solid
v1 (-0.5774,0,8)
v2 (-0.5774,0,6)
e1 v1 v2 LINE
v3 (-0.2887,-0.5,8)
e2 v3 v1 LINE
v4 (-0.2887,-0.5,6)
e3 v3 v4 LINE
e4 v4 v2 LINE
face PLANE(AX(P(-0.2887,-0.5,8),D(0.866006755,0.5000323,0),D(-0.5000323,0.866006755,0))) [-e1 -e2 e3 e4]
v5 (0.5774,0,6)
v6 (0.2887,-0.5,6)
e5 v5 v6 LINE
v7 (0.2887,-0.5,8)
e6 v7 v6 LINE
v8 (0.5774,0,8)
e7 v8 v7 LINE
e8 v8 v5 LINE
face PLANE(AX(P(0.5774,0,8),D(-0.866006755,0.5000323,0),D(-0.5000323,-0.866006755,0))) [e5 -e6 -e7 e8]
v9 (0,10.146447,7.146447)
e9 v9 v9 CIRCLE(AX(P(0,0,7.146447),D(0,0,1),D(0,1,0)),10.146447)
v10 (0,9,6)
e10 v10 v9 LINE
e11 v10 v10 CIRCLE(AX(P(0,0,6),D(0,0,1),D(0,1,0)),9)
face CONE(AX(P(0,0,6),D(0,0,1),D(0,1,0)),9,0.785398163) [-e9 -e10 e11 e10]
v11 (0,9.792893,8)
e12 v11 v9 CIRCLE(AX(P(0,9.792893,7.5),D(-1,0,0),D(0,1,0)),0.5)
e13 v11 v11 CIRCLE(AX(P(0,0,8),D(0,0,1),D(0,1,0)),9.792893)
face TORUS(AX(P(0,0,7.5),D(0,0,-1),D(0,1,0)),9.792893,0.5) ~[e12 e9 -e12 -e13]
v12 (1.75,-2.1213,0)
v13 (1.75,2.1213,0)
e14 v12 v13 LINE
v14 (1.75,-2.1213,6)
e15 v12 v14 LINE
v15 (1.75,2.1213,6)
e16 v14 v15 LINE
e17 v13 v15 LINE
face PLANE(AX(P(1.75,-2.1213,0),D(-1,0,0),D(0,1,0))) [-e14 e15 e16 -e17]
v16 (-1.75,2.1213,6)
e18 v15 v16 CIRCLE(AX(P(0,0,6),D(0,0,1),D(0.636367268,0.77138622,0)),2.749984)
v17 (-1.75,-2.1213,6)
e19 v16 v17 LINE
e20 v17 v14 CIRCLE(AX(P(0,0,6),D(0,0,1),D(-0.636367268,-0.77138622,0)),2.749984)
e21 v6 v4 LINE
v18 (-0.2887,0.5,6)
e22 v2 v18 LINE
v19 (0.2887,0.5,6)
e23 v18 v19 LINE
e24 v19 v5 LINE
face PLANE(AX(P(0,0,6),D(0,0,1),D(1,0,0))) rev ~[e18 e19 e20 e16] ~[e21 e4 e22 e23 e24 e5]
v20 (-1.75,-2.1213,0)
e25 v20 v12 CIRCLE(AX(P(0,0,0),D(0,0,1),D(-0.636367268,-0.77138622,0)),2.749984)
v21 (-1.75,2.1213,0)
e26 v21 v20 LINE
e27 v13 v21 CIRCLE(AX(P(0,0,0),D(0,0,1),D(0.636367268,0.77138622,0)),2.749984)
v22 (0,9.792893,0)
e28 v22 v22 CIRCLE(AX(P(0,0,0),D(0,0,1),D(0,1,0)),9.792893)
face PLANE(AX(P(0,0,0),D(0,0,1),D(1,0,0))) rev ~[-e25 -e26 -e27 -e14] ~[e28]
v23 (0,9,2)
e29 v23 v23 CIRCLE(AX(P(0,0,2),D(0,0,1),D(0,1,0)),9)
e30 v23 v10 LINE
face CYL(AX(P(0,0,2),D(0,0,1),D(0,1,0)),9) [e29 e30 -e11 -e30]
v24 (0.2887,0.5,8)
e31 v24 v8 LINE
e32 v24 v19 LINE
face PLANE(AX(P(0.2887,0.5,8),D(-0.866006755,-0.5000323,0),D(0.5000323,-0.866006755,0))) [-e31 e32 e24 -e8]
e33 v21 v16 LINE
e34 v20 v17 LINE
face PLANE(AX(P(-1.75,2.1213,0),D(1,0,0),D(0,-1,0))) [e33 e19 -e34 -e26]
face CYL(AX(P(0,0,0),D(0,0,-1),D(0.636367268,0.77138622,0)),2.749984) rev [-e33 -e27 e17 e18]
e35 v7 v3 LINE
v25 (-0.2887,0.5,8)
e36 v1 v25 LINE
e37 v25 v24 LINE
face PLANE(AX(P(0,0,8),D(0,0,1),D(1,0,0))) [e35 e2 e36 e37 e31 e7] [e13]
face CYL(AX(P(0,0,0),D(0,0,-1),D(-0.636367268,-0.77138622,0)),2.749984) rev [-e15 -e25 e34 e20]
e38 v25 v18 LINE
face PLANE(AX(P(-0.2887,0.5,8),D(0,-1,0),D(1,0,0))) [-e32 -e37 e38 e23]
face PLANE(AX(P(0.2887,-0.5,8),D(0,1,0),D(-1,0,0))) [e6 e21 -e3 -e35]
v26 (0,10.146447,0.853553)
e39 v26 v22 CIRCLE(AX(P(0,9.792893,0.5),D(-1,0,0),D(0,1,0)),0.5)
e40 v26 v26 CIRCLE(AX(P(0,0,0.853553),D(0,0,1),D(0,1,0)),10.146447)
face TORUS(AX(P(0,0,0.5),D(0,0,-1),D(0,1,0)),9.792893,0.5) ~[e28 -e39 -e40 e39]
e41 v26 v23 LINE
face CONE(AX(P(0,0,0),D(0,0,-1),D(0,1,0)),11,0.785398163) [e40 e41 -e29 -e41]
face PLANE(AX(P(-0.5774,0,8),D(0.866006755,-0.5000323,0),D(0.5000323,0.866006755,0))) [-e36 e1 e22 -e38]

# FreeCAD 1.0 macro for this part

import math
import FreeCAD as App
import Part
import Sketcher
from FreeCAD import Vector


def edges_at(feature, points):
    """Names of the edges that pass closest to the given points."""
    edges = feature.Shape.Edges
    near = lambda p: min(range(len(edges)), key=lambda i: edges[i].distToShape(Part.Vertex(*p))[0])
    return sorted({f"Edge{near(p) + 1}" for p in points})


def add_polygon(sketch, points):
    """Adds a closed chain of lines whose ends are joined by coincident constraints."""
    first, n = sketch.GeometryCount, len(points)
    for a, b in zip(points, points[1:] + points[:1]):
        sketch.addGeometry(Part.LineSegment(App.Vector(*a, 0), App.Vector(*b, 0)), False)
    for i in range(n):
        sketch.addConstraint(Sketcher.Constraint("Coincident", first + i, 2, first + (i + 1) % n, 1))

doc = App.newDocument("Part")
params = doc.addObject("Spreadsheet::Sheet", "Params")
for row, (alias, value) in enumerate([
    ("sketch1_diameter", "22 mm"),
    ("sketch1_radius", "2.75 mm"),
    ("pad1_length", "6 mm"),
    ("sketch2_diameter", "22 mm"),
    ("pad2_length", "2 mm"),
    ("sketch3_height", "4 mm"),
    ("sketch3_height2", "8 mm"),
    ("groove_angle", "360 deg"),
    ("fillet_radius", "0.5 mm"),
], start=1):
    params.set(f"A{row}", alias)
    params.set(f"B{row}", "=" + value)
    params.setAlias(f"B{row}", alias)

body = doc.addObject("PartDesign::Body", "Body")

# Sketch on XY plane
sketch1 = body.newObject("Sketcher::SketchObject", "Sketch")
sketch1.AttachmentSupport = (doc.getObject("XY_Plane"), [""])
sketch1.MapMode = "FlatFace"
sketch1.addGeometry([
    Part.Circle(Vector(0, 0, 0), Vector(0, 0, 1), 11),  # 0
    Part.LineSegment(Vector(-1.8, -2.1, 0), Vector(-1.8, 2.1, 0)),  # 1
    Part.ArcOfCircle(Part.Circle(Vector(0, 0, 0), Vector(0, 0, 1), 2.7), math.radians(50), math.radians(130)),  # 2
    Part.LineSegment(Vector(1.8, 2.1, 0), Vector(1.8, -2.1, 0)),  # 3
    Part.ArcOfCircle(Part.Circle(Vector(0, 0, 0), Vector(0, 0, 1), 2.7), math.radians(-130), math.radians(-50)),  # 4
], False)
sketch1.addConstraint([
    Sketcher.Constraint("Coincident", 1, 2, 2, 2),
    Sketcher.Constraint("Coincident", 2, 1, 3, 1),
    Sketcher.Constraint("Coincident", 3, 2, 4, 2),
    Sketcher.Constraint("Coincident", 4, 1, 1, 1),
    Sketcher.Constraint("Vertical", 1),
    Sketcher.Constraint("Vertical", 3),
    Sketcher.Constraint("Coincident", 0, 3, -1, 1),
    Sketcher.Constraint("Coincident", 2, 3, -1, 1),
    Sketcher.Constraint("Coincident", 4, 3, -1, 1),
    Sketcher.Constraint("Equal", 2, 4),
    Sketcher.Constraint("Horizontal", 1, 2, 2, 1),
    Sketcher.Constraint("Diameter", 0, 22.0),
    Sketcher.Constraint("Radius", 2, 2.75),
    Sketcher.Constraint("DistanceX", 1, 2, 2, 1, 3.5),
])
sketch1.setExpression("Constraints[11]", "Params.sketch1_diameter")
sketch1.setExpression("Constraints[12]", "Params.sketch1_radius")
pad1 = body.newObject("PartDesign::Pad", "Pad")
pad1.Profile = sketch1
pad1.setExpression("Length", "Params.pad1_length")

# Sketch on XY plane
sketch2 = body.newObject("Sketcher::SketchObject", "Sketch001")
sketch2.AttachmentSupport = (doc.getObject("XY_Plane"), [""])
sketch2.MapMode = "FlatFace"
sketch2.AttachmentOffset = App.Placement(Vector(0, 0, 6), App.Rotation())
sketch2.addGeometry(Part.Circle(Vector(0, 0, 0), Vector(0, 0, 1), 11), False)
sketch2.addConstraint([
    Sketcher.Constraint("Coincident", 0, 3, -1, 1),
    Sketcher.Constraint("Diameter", 0, 22.0),
])
sketch2.setExpression("Constraints[1]", "Params.sketch2_diameter")
pad2 = body.newObject("PartDesign::Pad", "Pad001")
pad2.Profile = sketch2
pad2.setExpression("Length", "Params.pad2_length")

# Sketch on YZ plane
sketch3 = body.newObject("Sketcher::SketchObject", "Sketch002")
sketch3.AttachmentSupport = (doc.getObject("YZ_Plane"), [""])
sketch3.MapMode = "FlatFace"
add_polygon(sketch3, [(11, 0), (11, 8), (9, 6), (9, 2)])  # lines 0-3
sketch3.addConstraint([
    Sketcher.Constraint("Vertical", 0),
    Sketcher.Constraint("Vertical", 2),
    Sketcher.Constraint("PointOnObject", 3, 2, -1),
    Sketcher.Constraint("Perpendicular", 1, 3),
    Sketcher.Constraint("Equal", 1, 3),
    Sketcher.Constraint("DistanceY", 2, 2, 2, 1, 4.0),
    Sketcher.Constraint("DistanceY", 0, 1, 0, 2, 8.0),
    Sketcher.Constraint("DistanceX", -1, 1, 0, 2, 11.0),
])
sketch3.setExpression("Constraints[9]", "Params.sketch3_height")
sketch3.setExpression("Constraints[10]", "Params.sketch3_height2")
groove = body.newObject("PartDesign::Groove", "Groove")
groove.Profile = sketch3
groove.ReferenceAxis = (sketch3, ["V_Axis"])
groove.setExpression("Angle", "Params.groove_angle")
doc.recompute()

fillet = body.newObject("PartDesign::Fillet", "Fillet")
fillet.Base = (groove, edges_at(groove, [(0, -11, 0), (0, -11, 8)]))
fillet.setExpression("Radius", "Params.fillet_radius")

# Sketch on XY plane
sketch4 = body.newObject("Sketcher::SketchObject", "Sketch003")
sketch4.AttachmentSupport = (doc.getObject("XY_Plane"), [""])
sketch4.MapMode = "FlatFace"
sketch4.AttachmentOffset = App.Placement(Vector(0, 0, 8), App.Rotation())
add_polygon(sketch4, [(0.3, -0.5), (0.6, 0), (0.3, 0.5), (-0.3, 0.5), (-0.6, 0), (-0.3, -0.5)])  # lines 0-5
sketch4.addConstraint([
    Sketcher.Constraint("Horizontal", 2),
    Sketcher.Constraint("Horizontal", 5),
    Sketcher.Constraint("Symmetric", 0, 2, 3, 2, -1, 1),
    Sketcher.Constraint("Symmetric", 1, 2, 4, 2, -1, 1),
    Sketcher.Constraint("PointOnObject", 0, 2, -1),
    Sketcher.Constraint("Parallel", 0, 3),
    Sketcher.Constraint("Vertical", 2, 2, 4, 2),
    Sketcher.Constraint("DistanceY", 4, 2, 2, 2, 1.0),
    Sketcher.Constraint("DistanceX", 2, 2, 2, 1, 0.5774),
    Sketcher.Constraint("DistanceX", 2, 2, 0, 2, 0.866),
])
pocket1 = body.newObject("PartDesign::Pocket", "Pocket")
pocket1.Profile = sketch4
pocket1.Type = "ThroughAll"

doc.recompute()
